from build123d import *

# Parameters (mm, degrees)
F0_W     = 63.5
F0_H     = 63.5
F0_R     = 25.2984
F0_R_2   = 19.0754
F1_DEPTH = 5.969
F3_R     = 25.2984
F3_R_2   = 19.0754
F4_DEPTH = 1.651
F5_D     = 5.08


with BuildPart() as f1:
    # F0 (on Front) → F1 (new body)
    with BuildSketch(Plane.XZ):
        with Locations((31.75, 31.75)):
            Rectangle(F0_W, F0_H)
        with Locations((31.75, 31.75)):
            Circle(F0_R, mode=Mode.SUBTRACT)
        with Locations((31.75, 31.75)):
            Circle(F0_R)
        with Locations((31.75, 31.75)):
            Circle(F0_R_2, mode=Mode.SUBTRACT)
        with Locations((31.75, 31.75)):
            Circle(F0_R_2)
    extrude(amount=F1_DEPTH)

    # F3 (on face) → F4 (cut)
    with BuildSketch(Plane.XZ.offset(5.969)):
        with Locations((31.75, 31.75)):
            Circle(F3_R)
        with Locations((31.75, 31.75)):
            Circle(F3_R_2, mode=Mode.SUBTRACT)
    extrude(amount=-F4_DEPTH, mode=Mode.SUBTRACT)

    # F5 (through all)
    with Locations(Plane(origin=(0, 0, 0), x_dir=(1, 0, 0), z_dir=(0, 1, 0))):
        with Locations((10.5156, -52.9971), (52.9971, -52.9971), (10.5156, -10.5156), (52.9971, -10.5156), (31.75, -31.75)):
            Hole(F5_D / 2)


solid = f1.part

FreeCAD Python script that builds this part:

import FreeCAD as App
import Part
import Sketcher
from FreeCAD import Vector
Q = App.Units.Quantity


def add_polygon(sketch, points):
    """Adds a closed chain of lines whose ends are joined by coincident constraints."""
    first, n = sketch.GeometryCount, len(points)
    for a, b in zip(points, points[1:] + points[:1]):
        sketch.addGeometry(Part.LineSegment(App.Vector(*a, 0), App.Vector(*b, 0)), False)
    for i in range(n):
        sketch.addConstraint(Sketcher.Constraint("Coincident", first + i, 2, first + (i + 1) % n, 1))

doc = App.newDocument("Part")
body = doc.addObject("PartDesign::Body", "Body")

# Sketch on XZ plane
sketch1 = doc.addObject("Sketcher::SketchObject", "Sketch")
body.addObject(sketch1)
sketch1.AttachmentSupport = (doc.XZ_Plane, [""])
sketch1.MapMode = "FlatFace"
add_polygon(sketch1, [(0, 64), (0, 0), (64, 0), (64, 64)])  # lines 0-3
sketch1.addConstraint([
    Sketcher.Constraint("Vertical", 0),
    Sketcher.Constraint("Horizontal", 1),
    Sketcher.Constraint("Vertical", 2),
    Sketcher.Constraint("Horizontal", 3),
    Sketcher.Constraint("Coincident", 0, 2, -1, 1),
    Sketcher.Constraint("Equal", 3, 0),
    Sketcher.Constraint("DistanceX", 1, 1, 1, 2, Q("2.5 in")),
])
pad1 = doc.addObject("PartDesign::Pad", "Pad")
body.addObject(pad1)
pad1.Profile = sketch1
pad1.Length = Q("0.235 in")

# Sketch on XZ plane
sketch2 = doc.addObject("Sketcher::SketchObject", "Sketch001")
body.addObject(sketch2)
sketch2.AttachmentSupport = (doc.XZ_Plane, [""])
sketch2.MapMode = "FlatFace"
sketch2.AttachmentOffset = App.Placement(Vector(0, 0, 0.235 * 25.4), App.Rotation())
sketch2.addGeometry([
    Part.Circle(Vector(32, 32, 0), Vector(0, 0, 1), 25),
    Part.Circle(Vector(32, 32, 0), Vector(0, 0, 1), 19),
], False)
sketch2.addConstraint([
    Sketcher.Constraint("Coincident", 1, 3, 0, 3),
    Sketcher.Constraint("Diameter", 0, Q("1.992 in")),
    Sketcher.Constraint("Diameter", 1, Q("1.502 in")),
    Sketcher.Constraint("DistanceX", -1, 1, 0, 3, Q("1.25 in")),
    Sketcher.Constraint("DistanceY", -1, 1, 0, 3, Q("1.25 in")),
])
pocket1 = doc.addObject("PartDesign::Pocket", "Pocket")
body.addObject(pocket1)
pocket1.Profile = sketch2
pocket1.Length = Q("0.065 in")

# Sketch on XZ plane
sketch3 = doc.addObject("Sketcher::SketchObject", "Sketch002")
body.addObject(sketch3)
sketch3.AttachmentSupport = (doc.XZ_Plane, [""])
sketch3.MapMode = "FlatFace"
sketch3.addGeometry([
    Part.Circle(Vector(10.5, 53, 0), Vector(0, 0, 1), 2.5),  # 0
    Part.Circle(Vector(53, 53, 0), Vector(0, 0, 1), 2.5),  # 1
    Part.Circle(Vector(10.5, 10.5, 0), Vector(0, 0, 1), 2.5),  # 2
    Part.Circle(Vector(53, 10.5, 0), Vector(0, 0, 1), 2.5),  # 3
    Part.Circle(Vector(31.8, 31.8, 0), Vector(0, 0, 1), 2.5),  # 4
], False)
sketch3.addConstraint([
    Sketcher.Constraint("Equal", 0, 1),
    Sketcher.Constraint("Equal", 1, 2),
    Sketcher.Constraint("Equal", 2, 3),
    Sketcher.Constraint("Equal", 3, 4),
    Sketcher.Constraint("Horizontal", 0, 3, 1, 3),
    Sketcher.Constraint("Horizontal", 2, 3, 3, 3),
    Sketcher.Constraint("Vertical", 0, 3, 2, 3),
    Sketcher.Constraint("Vertical", 1, 3, 3, 3),
    Sketcher.Constraint("Diameter", 0, Q("0.2 in")),
    Sketcher.Constraint("DistanceX", -1, 1, 4, 3, Q("1.25 in")),
    Sketcher.Constraint("DistanceY", -1, 1, 4, 3, Q("1.25 in")),
    Sketcher.Constraint("DistanceX", -1, 1, 0, 3, Q("0.414 in")),
    Sketcher.Constraint("DistanceY", -1, 1, 2, 3, Q("0.414 in")),
    Sketcher.Constraint("DistanceY", -1, 1, 0, 3, Q("2.0865 in")),
    Sketcher.Constraint("DistanceX", -1, 1, 1, 3, Q("2.0865 in")),
])
doc.recompute()
hole = doc.addObject("PartDesign::Hole", "Hole")
body.addObject(hole)
hole.Profile = sketch3
hole.ThreadType = "None"
hole.Diameter = Q("0.2 in")
hole.DepthType = "ThroughAll"
hole.Reversed = True

doc.recompute()
